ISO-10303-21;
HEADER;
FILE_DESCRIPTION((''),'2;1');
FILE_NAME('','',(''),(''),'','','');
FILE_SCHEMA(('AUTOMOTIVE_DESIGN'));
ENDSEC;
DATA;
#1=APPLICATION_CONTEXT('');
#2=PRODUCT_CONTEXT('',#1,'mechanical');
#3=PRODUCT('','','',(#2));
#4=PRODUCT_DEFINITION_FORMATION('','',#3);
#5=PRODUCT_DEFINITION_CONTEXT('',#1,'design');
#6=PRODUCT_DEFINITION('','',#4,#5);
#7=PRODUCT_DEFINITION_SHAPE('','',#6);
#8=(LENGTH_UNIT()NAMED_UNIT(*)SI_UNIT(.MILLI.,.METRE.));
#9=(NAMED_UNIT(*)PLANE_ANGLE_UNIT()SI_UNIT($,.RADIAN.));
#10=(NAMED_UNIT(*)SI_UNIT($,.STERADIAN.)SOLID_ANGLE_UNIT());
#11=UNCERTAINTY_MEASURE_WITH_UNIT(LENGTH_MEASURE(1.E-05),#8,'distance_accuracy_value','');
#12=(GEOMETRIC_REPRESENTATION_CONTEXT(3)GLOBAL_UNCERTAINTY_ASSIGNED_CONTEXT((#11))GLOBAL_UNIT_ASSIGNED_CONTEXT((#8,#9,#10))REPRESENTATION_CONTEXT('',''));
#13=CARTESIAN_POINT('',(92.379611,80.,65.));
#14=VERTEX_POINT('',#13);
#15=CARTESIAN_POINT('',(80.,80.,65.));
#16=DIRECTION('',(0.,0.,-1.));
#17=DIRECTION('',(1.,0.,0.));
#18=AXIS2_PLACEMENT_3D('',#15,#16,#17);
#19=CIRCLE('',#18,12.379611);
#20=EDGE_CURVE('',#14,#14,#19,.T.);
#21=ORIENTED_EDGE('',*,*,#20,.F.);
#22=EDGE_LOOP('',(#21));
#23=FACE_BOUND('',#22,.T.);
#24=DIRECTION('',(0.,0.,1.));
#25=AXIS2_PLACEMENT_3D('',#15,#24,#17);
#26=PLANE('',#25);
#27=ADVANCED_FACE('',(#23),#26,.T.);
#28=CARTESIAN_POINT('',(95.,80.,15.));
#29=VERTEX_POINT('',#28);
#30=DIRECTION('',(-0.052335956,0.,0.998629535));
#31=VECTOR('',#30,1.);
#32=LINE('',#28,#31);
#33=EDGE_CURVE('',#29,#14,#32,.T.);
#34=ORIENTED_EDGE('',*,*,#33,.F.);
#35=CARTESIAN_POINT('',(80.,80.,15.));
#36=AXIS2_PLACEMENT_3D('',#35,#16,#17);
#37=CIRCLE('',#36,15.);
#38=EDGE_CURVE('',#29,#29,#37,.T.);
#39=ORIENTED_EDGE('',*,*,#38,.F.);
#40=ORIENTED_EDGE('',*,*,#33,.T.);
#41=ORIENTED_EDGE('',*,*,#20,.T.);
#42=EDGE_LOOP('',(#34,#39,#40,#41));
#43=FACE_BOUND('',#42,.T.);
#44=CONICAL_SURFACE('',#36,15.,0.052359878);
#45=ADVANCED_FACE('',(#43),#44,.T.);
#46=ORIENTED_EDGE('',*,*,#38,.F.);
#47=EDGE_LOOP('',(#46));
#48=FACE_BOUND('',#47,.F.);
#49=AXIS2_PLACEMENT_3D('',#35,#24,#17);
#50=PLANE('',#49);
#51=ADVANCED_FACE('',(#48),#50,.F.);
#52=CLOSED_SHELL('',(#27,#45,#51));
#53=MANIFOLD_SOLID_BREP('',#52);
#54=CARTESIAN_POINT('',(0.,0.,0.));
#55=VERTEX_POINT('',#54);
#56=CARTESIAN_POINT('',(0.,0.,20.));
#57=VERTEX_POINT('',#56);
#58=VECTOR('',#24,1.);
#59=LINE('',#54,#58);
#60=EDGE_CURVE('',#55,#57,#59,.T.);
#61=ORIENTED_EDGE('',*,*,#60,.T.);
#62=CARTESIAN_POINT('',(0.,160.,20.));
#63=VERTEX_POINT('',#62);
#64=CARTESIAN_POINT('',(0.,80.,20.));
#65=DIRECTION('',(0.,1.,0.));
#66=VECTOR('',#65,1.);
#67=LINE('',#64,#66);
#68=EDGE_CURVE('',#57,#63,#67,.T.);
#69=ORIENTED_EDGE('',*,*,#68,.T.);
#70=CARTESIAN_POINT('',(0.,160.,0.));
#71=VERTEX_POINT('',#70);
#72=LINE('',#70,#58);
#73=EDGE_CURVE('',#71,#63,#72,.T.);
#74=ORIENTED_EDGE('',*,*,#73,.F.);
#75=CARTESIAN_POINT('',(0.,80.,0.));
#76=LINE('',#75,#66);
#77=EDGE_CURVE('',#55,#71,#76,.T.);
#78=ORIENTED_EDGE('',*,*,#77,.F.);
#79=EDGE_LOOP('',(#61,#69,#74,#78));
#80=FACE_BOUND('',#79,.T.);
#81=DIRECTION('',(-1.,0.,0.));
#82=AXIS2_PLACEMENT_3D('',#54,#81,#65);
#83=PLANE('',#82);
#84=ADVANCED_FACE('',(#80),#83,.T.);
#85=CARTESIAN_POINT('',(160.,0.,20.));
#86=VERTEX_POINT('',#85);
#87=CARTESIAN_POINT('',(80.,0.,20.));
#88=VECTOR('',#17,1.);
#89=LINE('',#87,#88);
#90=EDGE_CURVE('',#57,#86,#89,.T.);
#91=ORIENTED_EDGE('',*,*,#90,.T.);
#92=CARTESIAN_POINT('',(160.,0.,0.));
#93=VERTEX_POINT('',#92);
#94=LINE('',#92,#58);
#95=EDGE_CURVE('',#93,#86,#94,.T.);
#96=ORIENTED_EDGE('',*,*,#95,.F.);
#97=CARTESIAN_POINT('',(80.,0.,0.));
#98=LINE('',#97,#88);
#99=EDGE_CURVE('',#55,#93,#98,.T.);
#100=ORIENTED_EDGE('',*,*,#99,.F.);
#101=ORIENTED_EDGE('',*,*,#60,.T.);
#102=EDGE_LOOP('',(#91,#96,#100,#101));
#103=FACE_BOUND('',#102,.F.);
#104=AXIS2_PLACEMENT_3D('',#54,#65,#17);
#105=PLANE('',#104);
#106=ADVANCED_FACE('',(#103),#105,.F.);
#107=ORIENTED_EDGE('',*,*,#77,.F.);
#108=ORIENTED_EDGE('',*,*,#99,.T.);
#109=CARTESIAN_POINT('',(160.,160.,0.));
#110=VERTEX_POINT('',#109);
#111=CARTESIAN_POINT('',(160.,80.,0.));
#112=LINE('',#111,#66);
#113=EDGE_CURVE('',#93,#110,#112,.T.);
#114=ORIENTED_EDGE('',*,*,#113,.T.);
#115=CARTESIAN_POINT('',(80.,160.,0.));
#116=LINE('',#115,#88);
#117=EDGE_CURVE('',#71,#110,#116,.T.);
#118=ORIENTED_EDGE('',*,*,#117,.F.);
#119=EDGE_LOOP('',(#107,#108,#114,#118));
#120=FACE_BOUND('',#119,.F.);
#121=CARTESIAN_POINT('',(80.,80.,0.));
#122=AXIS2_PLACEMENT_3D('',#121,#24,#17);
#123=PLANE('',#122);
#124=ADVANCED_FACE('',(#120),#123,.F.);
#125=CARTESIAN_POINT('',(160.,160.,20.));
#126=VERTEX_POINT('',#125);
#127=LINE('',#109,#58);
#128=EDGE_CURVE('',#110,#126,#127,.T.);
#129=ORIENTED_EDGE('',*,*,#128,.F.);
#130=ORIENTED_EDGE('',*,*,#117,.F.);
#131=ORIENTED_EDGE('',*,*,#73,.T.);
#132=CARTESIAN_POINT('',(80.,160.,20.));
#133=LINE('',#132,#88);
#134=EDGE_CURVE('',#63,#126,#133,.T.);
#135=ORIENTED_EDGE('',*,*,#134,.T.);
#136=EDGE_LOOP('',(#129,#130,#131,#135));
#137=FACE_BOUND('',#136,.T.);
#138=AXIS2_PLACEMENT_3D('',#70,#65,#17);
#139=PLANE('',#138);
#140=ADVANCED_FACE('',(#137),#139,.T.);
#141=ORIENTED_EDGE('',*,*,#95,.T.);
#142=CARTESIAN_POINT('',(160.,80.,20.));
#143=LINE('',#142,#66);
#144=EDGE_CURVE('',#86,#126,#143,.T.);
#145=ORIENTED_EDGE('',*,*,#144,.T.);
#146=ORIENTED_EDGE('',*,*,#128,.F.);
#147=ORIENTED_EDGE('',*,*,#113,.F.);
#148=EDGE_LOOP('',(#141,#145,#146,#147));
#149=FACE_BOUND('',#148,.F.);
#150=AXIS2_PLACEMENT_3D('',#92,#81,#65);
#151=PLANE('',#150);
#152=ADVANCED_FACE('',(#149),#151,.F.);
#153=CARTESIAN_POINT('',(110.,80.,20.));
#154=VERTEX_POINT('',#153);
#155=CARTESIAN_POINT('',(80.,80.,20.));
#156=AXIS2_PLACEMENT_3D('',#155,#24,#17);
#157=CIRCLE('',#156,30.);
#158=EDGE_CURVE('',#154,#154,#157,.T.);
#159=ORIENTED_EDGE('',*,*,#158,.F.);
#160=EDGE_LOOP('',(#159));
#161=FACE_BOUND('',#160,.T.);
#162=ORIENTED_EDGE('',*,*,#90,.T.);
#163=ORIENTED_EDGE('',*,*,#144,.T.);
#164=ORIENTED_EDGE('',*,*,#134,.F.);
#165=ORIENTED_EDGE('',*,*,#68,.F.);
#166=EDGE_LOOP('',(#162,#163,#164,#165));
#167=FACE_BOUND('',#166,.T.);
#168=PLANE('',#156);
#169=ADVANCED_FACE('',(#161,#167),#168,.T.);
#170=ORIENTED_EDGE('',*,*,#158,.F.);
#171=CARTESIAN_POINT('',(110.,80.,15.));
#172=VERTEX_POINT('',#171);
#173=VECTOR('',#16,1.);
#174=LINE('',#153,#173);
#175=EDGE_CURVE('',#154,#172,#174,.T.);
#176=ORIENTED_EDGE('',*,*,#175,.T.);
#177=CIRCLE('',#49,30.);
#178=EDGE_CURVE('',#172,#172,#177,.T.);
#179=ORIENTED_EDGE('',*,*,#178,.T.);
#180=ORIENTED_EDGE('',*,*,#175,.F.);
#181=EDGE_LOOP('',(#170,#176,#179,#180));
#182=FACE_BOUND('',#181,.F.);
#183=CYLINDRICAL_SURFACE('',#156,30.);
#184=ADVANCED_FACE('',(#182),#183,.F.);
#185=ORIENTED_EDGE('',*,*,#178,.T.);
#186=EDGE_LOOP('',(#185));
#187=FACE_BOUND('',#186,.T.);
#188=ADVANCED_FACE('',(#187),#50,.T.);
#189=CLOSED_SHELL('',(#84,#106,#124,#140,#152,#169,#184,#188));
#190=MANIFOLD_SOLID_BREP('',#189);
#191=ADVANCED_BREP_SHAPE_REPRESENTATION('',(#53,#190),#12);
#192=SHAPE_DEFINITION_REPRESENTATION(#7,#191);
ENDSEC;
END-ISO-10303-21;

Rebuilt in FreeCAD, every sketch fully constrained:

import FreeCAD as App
import Part
import Sketcher

V = App.Vector


def add_polygon(sketch, points):
    """Adds a closed chain of lines whose ends are joined by coincident constraints."""
    first, n = sketch.GeometryCount, len(points)
    for a, b in zip(points, points[1:] + points[:1]):
        sketch.addGeometry(Part.LineSegment(App.Vector(*a, 0), App.Vector(*b, 0)), False)
    for i in range(n):
        sketch.addConstraint(Sketcher.Constraint("Coincident", first + i, 2, first + (i + 1) % n, 1))

doc = App.newDocument("Part")
params = doc.addObject("Spreadsheet::Sheet", "Params")
for row, (alias, value) in enumerate([
    ("sketch1_width", "160 mm"),
    ("pad1_length", "20 mm"),
    ("sketch2_diameter", "60 mm"),
    ("pocket1_length", "5 mm"),
    ("sketch3_diameter", "30 mm"),
    ("pad2_length", "50 mm"),
    ("pad2_taper", "-3 deg"),
], start=1):
    params.set(f"A{row}", alias)
    params.set(f"B{row}", "=" + value)
    params.setAlias(f"B{row}", alias)

body = doc.addObject("PartDesign::Body", "Body")

# Sketch on XY plane
sketch1 = body.newObject("Sketcher::SketchObject", "Sketch")
sketch1.AttachmentSupport = (doc.getObject("XY_Plane"), [""])
sketch1.MapMode = "FlatFace"
add_polygon(sketch1, [(0, 160), (0, 0), (160, 0), (160, 160)])  # lines 0-3
sketch1.addConstraint(Sketcher.Constraint("Vertical", 0))
sketch1.addConstraint(Sketcher.Constraint("Horizontal", 1))
sketch1.addConstraint(Sketcher.Constraint("Vertical", 2))
sketch1.addConstraint(Sketcher.Constraint("Horizontal", 3))
sketch1.addConstraint(Sketcher.Constraint("Coincident", 0, 2, -1, 1))
sketch1.addConstraint(Sketcher.Constraint("Equal", 3, 0))
sketch1.addConstraint(Sketcher.Constraint("DistanceX", 1, 1, 1, 2, 160.0))
sketch1.setExpression("Constraints[10]", "Params.sketch1_width")
pad1 = body.newObject("PartDesign::Pad", "Pad")
pad1.Profile = sketch1
pad1.setExpression("Length", "Params.pad1_length")

# Sketch on XY plane
sketch2 = body.newObject("Sketcher::SketchObject", "Sketch001")
sketch2.AttachmentSupport = (doc.getObject("XY_Plane"), [""])
sketch2.MapMode = "FlatFace"
sketch2.AttachmentOffset = App.Placement(V(0, 0, 20), App.Rotation())
sketch2.addGeometry(Part.Circle(V(80, 80, 0), V(0, 0, 1), 30), False)
sketch2.addConstraint(Sketcher.Constraint("Diameter", 0, 60.0))
sketch2.addConstraint(Sketcher.Constraint("DistanceX", -1, 1, 0, 3, 80.0))
sketch2.addConstraint(Sketcher.Constraint("DistanceY", -1, 1, 0, 3, 80.0))
sketch2.setExpression("Constraints[0]", "Params.sketch2_diameter")
pocket1 = body.newObject("PartDesign::Pocket", "Pocket")
pocket1.Profile = sketch2
pocket1.setExpression("Length", "Params.pocket1_length")
body2 = doc.addObject("PartDesign::Body", "Body001")

# Sketch on XY plane
sketch3 = body2.newObject("Sketcher::SketchObject", "Sketch002")
sketch3.AttachmentSupport = (doc.getObject("XY_Plane001"), [""])
sketch3.MapMode = "FlatFace"
sketch3.AttachmentOffset = App.Placement(V(0, 0, 15), App.Rotation())
sketch3.addGeometry(Part.Circle(V(80, 80, 0), V(0, 0, 1), 15), False)
sketch3.addConstraint(Sketcher.Constraint("Diameter", 0, 30.0))
sketch3.addConstraint(Sketcher.Constraint("DistanceX", -1, 1, 0, 3, 80.0))
sketch3.addConstraint(Sketcher.Constraint("DistanceY", -1, 1, 0, 3, 80.0))
sketch3.setExpression("Constraints[0]", "Params.sketch3_diameter")
pad2 = body2.newObject("PartDesign::Pad", "Pad001")
pad2.Profile = sketch3
pad2.setExpression("Length", "Params.pad2_length")
pad2.setExpression("TaperAngle", "Params.pad2_taper")

doc.recompute()
